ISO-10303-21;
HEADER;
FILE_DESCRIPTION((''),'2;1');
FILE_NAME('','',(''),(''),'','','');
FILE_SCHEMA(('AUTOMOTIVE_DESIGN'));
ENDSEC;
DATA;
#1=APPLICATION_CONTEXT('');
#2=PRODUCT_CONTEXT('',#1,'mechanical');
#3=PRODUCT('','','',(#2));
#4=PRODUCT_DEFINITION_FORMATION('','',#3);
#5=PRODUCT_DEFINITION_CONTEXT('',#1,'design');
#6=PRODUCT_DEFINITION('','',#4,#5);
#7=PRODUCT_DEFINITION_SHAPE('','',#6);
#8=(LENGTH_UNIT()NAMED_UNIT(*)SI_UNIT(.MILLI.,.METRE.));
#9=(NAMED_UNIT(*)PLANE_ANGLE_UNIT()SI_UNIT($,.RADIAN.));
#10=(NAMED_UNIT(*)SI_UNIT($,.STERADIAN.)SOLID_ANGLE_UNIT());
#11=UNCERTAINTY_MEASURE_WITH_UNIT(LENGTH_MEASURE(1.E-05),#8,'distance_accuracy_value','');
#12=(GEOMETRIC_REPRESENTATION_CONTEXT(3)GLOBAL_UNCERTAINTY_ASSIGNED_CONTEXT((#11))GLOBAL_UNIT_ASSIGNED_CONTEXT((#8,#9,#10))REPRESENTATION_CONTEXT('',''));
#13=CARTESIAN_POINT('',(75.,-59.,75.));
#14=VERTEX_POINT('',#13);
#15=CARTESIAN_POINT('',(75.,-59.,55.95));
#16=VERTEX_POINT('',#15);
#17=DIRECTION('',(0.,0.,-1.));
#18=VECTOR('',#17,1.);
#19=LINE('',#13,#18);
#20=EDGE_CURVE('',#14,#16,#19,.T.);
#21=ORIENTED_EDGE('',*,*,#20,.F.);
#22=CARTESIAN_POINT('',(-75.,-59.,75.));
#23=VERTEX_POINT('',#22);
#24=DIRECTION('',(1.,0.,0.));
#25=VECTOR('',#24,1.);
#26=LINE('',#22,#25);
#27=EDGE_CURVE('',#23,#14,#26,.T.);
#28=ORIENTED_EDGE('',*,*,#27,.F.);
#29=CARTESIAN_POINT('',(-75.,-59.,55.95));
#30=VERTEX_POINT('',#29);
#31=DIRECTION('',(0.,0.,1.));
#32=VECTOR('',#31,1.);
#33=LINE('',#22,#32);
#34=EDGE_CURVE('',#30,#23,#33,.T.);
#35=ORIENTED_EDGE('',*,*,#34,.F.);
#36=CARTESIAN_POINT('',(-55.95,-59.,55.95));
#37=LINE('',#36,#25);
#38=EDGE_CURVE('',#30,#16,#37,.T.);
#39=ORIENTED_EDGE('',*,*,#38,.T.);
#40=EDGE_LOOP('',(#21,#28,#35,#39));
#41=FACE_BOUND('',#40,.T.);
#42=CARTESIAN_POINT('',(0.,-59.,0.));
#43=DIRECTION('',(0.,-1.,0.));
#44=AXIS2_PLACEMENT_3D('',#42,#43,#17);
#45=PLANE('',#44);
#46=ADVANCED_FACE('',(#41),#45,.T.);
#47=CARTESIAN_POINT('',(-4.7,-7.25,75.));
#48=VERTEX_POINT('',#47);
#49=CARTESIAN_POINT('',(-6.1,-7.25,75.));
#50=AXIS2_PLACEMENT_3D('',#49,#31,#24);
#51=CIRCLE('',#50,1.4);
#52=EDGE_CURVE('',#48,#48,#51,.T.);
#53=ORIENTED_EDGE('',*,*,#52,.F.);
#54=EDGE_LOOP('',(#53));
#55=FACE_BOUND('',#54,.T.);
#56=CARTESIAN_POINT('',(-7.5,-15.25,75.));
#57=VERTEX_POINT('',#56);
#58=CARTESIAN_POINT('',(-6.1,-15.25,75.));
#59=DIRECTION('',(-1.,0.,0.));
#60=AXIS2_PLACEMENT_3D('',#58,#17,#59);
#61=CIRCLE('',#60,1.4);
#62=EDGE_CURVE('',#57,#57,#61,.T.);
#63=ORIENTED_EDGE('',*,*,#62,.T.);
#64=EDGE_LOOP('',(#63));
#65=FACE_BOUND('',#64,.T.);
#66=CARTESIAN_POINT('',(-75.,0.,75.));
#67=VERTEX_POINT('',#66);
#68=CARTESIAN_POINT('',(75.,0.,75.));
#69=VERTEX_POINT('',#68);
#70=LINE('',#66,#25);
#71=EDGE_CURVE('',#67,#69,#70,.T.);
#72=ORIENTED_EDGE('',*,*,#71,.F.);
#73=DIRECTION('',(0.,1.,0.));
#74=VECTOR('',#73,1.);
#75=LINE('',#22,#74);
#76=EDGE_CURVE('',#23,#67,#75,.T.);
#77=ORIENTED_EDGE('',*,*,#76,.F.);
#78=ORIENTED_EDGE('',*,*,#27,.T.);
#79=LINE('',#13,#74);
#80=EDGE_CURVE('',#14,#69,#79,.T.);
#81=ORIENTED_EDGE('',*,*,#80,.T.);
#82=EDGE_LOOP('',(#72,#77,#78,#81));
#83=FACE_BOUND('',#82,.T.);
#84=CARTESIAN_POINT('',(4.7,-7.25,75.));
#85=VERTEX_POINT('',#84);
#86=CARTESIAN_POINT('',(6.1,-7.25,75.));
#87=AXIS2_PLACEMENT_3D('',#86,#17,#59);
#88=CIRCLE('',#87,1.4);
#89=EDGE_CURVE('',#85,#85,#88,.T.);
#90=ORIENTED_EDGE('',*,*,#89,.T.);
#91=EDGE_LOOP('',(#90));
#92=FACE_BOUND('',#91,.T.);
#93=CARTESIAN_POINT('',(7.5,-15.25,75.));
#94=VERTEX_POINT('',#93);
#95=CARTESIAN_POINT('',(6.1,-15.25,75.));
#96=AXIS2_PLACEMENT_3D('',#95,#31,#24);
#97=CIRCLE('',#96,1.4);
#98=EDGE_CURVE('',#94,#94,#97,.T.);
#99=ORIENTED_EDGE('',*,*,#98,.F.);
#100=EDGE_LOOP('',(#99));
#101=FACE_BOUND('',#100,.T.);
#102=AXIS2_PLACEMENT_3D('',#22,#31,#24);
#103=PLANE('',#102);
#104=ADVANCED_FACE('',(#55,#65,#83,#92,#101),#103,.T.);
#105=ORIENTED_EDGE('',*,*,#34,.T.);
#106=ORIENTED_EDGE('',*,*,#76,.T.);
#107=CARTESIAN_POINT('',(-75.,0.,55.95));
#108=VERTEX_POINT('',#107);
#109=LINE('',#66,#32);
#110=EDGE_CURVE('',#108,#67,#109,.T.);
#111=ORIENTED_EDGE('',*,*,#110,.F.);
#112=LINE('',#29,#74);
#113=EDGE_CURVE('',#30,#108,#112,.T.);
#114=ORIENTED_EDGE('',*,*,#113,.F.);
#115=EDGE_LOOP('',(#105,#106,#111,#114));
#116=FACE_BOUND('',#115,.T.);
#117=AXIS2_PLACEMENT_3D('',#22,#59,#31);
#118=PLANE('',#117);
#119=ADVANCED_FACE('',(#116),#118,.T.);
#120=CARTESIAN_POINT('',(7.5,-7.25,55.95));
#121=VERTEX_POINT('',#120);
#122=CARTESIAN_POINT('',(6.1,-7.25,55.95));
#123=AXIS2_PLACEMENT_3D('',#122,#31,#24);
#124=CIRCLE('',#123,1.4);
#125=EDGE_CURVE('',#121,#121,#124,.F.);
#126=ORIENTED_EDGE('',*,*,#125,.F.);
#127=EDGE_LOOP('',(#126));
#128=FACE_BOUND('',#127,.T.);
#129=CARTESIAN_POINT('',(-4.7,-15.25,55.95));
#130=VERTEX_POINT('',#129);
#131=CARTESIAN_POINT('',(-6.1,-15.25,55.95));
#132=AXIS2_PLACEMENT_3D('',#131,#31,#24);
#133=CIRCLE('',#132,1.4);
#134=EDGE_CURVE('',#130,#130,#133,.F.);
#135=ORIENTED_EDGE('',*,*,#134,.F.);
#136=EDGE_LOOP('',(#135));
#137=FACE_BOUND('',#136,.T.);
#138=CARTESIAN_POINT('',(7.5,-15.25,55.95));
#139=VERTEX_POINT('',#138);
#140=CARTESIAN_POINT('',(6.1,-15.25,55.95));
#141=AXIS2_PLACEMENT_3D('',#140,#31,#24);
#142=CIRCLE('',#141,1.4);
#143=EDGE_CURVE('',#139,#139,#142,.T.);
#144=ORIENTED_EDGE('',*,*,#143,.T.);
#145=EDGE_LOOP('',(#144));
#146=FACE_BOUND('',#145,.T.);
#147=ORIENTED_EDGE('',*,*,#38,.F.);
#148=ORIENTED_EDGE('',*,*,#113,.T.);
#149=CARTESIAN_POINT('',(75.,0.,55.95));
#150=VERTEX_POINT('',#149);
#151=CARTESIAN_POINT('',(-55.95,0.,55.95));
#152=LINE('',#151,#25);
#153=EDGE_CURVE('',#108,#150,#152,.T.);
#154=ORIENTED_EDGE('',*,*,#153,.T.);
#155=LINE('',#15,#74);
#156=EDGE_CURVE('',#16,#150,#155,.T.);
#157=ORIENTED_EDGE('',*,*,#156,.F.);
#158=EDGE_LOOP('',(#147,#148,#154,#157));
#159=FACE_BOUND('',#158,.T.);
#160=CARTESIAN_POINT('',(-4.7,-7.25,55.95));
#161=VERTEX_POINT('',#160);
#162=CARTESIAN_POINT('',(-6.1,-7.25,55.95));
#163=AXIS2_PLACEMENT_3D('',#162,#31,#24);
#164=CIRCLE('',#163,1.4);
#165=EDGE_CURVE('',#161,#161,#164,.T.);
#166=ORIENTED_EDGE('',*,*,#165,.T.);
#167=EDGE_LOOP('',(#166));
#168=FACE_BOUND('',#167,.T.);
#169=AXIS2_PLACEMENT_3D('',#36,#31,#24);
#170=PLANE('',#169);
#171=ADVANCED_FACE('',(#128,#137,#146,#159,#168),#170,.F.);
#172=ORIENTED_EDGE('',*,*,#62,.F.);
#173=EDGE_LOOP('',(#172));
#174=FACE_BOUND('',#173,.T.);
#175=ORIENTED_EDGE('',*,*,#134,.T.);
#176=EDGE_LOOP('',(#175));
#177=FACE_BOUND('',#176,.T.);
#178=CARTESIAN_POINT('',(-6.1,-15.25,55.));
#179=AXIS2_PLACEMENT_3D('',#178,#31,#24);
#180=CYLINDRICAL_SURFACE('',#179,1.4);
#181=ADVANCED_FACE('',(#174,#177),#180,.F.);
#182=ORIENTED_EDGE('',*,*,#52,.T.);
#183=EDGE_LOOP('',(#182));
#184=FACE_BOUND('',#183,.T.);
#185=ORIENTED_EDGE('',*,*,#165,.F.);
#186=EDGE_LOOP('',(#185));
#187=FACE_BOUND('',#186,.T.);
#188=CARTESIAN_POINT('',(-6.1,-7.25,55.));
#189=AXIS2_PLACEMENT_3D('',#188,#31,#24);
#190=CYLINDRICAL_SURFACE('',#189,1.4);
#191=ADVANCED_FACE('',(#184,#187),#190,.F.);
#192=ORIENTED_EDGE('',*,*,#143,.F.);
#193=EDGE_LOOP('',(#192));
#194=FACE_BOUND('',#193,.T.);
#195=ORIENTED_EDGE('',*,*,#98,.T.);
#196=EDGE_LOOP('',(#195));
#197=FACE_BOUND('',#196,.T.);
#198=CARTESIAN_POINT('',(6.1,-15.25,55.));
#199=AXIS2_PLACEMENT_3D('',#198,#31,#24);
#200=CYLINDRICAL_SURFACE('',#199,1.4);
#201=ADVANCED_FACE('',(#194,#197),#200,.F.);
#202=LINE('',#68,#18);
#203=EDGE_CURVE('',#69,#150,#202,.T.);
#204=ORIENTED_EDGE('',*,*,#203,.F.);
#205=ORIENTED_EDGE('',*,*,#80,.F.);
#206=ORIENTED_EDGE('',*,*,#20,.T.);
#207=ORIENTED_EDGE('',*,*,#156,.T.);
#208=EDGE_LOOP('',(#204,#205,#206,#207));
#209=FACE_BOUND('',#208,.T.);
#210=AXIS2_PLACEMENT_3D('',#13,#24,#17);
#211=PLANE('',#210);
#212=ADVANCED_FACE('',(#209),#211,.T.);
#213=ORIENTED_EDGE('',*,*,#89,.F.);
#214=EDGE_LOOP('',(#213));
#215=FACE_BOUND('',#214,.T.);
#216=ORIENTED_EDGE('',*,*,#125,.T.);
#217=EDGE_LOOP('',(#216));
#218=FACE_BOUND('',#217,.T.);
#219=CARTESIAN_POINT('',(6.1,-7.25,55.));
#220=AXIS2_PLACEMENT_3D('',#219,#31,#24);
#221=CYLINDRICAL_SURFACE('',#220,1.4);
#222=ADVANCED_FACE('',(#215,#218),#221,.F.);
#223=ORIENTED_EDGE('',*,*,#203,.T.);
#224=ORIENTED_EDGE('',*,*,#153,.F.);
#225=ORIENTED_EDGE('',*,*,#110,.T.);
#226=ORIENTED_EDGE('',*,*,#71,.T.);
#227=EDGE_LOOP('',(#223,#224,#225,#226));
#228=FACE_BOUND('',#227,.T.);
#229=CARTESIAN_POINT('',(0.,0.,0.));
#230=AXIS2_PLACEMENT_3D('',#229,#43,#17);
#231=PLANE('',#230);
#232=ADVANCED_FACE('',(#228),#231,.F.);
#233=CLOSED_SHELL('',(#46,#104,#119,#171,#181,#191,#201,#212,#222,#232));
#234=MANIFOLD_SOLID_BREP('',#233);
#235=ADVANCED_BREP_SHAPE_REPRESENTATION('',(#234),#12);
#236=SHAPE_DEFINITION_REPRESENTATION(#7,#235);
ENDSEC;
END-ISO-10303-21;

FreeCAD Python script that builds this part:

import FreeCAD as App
import Part
import Sketcher

V = App.Vector


def add_polygon(sketch, points):
    """Adds a closed chain of lines whose ends are joined by coincident constraints."""
    first, n = sketch.GeometryCount, len(points)
    for a, b in zip(points, points[1:] + points[:1]):
        sketch.addGeometry(Part.LineSegment(App.Vector(*a, 0), App.Vector(*b, 0)), False)
    for i in range(n):
        sketch.addConstraint(Sketcher.Constraint("Coincident", first + i, 2, first + (i + 1) % n, 1))

doc = App.newDocument("Part")
body = doc.addObject("PartDesign::Body", "Body")

# Sketch on XZ plane
sketch1 = body.newObject("Sketcher::SketchObject", "Sketch")
sketch1.AttachmentSupport = (doc.getObject("XZ_Plane"), [""])
sketch1.MapMode = "FlatFace"
add_polygon(sketch1, [(-75, -75), (-75, 75), (75, 75), (75, -75)])  # lines 0-3
sketch1.addConstraint(Sketcher.Constraint("Vertical", 0))
sketch1.addConstraint(Sketcher.Constraint("Horizontal", 1))
sketch1.addConstraint(Sketcher.Constraint("Vertical", 2))
sketch1.addConstraint(Sketcher.Constraint("Horizontal", 3))
sketch1.addConstraint(Sketcher.Constraint("Symmetric", 0, 2, 2, 2, -1, 1))
sketch1.addConstraint(Sketcher.Constraint("Equal", 3, 0))
sketch1.addConstraint(Sketcher.Constraint("DistanceX", 1, 1, 1, 2, 150.0))
pad1 = body.newObject("PartDesign::Pad", "Pad")
pad1.Profile = sketch1
pad1.Length = 59

# Sketch on XZ plane
sketch2 = body.newObject("Sketcher::SketchObject", "Sketch001")
sketch2.AttachmentSupport = (doc.getObject("XZ_Plane"), [""])
sketch2.MapMode = "FlatFace"
add_polygon(sketch2, [(-56, -56), (-56, 56), (56, 56), (56, -56)])  # lines 0-3
sketch2.addConstraint(Sketcher.Constraint("Vertical", 0))
sketch2.addConstraint(Sketcher.Constraint("Horizontal", 1))
sketch2.addConstraint(Sketcher.Constraint("Vertical", 2))
sketch2.addConstraint(Sketcher.Constraint("Horizontal", 3))
sketch2.addConstraint(Sketcher.Constraint("Symmetric", 0, 2, 2, 2, -1, 1))
sketch2.addConstraint(Sketcher.Constraint("Equal", 3, 0))
sketch2.addConstraint(Sketcher.Constraint("DistanceX", 1, 1, 1, 2, 111.9))
pocket1 = body.newObject("PartDesign::Pocket", "Pocket")
pocket1.Profile = sketch2
pocket1.Type = "ThroughAll"
pocket1.Reversed = True

# Sketch on YZ plane
sketch3 = body.newObject("Sketcher::SketchObject", "Sketch002")
sketch3.AttachmentSupport = (doc.getObject("YZ_Plane"), [""])
sketch3.MapMode = "FlatFace"
sketch3.AttachmentOffset = App.Placement(V(0, 0, -75), App.Rotation())
sketch3.addGeometry(Part.Circle(V(-7.2, -6.1, 0), V(0, 0, 1), 1.4), False)
sketch3.addGeometry(Part.Circle(V(-7.2, 6.1, 0), V(0, 0, 1), 1.4), False)
sketch3.addGeometry(Part.Circle(V(-15.2, 6.1, 0), V(0, 0, 1), 1.4), False)
sketch3.addGeometry(Part.Circle(V(-15.2, -6.1, 0), V(0, 0, 1), 1.4), False)
sketch3.addConstraint(Sketcher.Constraint("Equal", 0, 1))
sketch3.addConstraint(Sketcher.Constraint("Equal", 1, 2))
sketch3.addConstraint(Sketcher.Constraint("Equal", 2, 3))
sketch3.addConstraint(Sketcher.Constraint("Symmetric", 0, 3, 1, 3, -1))
sketch3.addConstraint(Sketcher.Constraint("Symmetric", 2, 3, 3, 3, -1))
sketch3.addConstraint(Sketcher.Constraint("Horizontal", 1, 3, 2, 3))
sketch3.addConstraint(Sketcher.Constraint("Diameter", 0, 2.8))
sketch3.addConstraint(Sketcher.Constraint("DistanceX", 2, 3, 1, 3, 8.0))
sketch3.addConstraint(Sketcher.Constraint("DistanceY", 0, 3, -1, 1, 6.1))
sketch3.addConstraint(Sketcher.Constraint("DistanceX", 0, 3, -1, 1, 7.25))
pocket2 = body.newObject("PartDesign::Pocket", "Pocket001")
pocket2.Profile = sketch3
pocket2.Length = 20
pocket2.Reversed = True
doc.recompute()

polarpattern = body.newObject("PartDesign::PolarPattern", "PolarPattern")
polarpattern.Originals = [pocket2]
polarpattern.Axis = (doc.getObject("Y_Axis"), [""])
polarpattern.Angle = 180
polarpattern.Occurrences = 3
body.Tip = polarpattern

# Sketch on XZ plane
sketch4 = body.newObject("Sketcher::SketchObject", "Sketch003")
sketch4.AttachmentSupport = (doc.getObject("XZ_Plane"), [""])
sketch4.MapMode = "FlatFace"
add_polygon(sketch4, [(-56, -161), (-56, -56), (56, -56), (56, -161)])  # lines 0-3
sketch4.addConstraint(Sketcher.Constraint("Vertical", 0))
sketch4.addConstraint(Sketcher.Constraint("Horizontal", 1))
sketch4.addConstraint(Sketcher.Constraint("Vertical", 2))
sketch4.addConstraint(Sketcher.Constraint("Horizontal", 3))
sketch4.addConstraint(Sketcher.Constraint("DistanceX", 1, 1, 1, 2, 111.9))
sketch4.addConstraint(Sketcher.Constraint("DistanceX", 0, 2, -1, 1, 55.95))
sketch4.addConstraint(Sketcher.Constraint("DistanceY", 0, 2, -1, 1, 55.95))
sketch4.addConstraint(Sketcher.Constraint("DistanceY", 0, 1, 0, 2, 105.448296))
pocket3 = body.newObject("PartDesign::Pocket", "Pocket002")
pocket3.Profile = sketch4
pocket3.Type = "ThroughAll"
pocket3.Reversed = True

# Sketch on XZ plane
sketch5 = body.newObject("Sketcher::SketchObject", "Sketch004")
sketch5.AttachmentSupport = (doc.getObject("XZ_Plane"), [""])
sketch5.MapMode = "FlatFace"
add_polygon(sketch5, [(-75, -75), (-75, 56), (75, 56), (75, -75)])  # lines 0-3
sketch5.addConstraint(Sketcher.Constraint("Vertical", 0))
sketch5.addConstraint(Sketcher.Constraint("Horizontal", 1))
sketch5.addConstraint(Sketcher.Constraint("Vertical", 2))
sketch5.addConstraint(Sketcher.Constraint("Horizontal", 3))
sketch5.addConstraint(Sketcher.Constraint("DistanceX", 1, 1, 1, 2, 150.0))
sketch5.addConstraint(Sketcher.Constraint("DistanceX", 0, 2, -1, 1, 75.0))
sketch5.addConstraint(Sketcher.Constraint("DistanceY", 2, 2, -1, 1, 75.0))
sketch5.addConstraint(Sketcher.Constraint("DistanceY", 0, 1, 0, 2, 130.95))
pocket4 = body.newObject("PartDesign::Pocket", "Pocket003")
pocket4.Profile = sketch5
pocket4.Type = "ThroughAll"
pocket4.Reversed = True

doc.recompute()
